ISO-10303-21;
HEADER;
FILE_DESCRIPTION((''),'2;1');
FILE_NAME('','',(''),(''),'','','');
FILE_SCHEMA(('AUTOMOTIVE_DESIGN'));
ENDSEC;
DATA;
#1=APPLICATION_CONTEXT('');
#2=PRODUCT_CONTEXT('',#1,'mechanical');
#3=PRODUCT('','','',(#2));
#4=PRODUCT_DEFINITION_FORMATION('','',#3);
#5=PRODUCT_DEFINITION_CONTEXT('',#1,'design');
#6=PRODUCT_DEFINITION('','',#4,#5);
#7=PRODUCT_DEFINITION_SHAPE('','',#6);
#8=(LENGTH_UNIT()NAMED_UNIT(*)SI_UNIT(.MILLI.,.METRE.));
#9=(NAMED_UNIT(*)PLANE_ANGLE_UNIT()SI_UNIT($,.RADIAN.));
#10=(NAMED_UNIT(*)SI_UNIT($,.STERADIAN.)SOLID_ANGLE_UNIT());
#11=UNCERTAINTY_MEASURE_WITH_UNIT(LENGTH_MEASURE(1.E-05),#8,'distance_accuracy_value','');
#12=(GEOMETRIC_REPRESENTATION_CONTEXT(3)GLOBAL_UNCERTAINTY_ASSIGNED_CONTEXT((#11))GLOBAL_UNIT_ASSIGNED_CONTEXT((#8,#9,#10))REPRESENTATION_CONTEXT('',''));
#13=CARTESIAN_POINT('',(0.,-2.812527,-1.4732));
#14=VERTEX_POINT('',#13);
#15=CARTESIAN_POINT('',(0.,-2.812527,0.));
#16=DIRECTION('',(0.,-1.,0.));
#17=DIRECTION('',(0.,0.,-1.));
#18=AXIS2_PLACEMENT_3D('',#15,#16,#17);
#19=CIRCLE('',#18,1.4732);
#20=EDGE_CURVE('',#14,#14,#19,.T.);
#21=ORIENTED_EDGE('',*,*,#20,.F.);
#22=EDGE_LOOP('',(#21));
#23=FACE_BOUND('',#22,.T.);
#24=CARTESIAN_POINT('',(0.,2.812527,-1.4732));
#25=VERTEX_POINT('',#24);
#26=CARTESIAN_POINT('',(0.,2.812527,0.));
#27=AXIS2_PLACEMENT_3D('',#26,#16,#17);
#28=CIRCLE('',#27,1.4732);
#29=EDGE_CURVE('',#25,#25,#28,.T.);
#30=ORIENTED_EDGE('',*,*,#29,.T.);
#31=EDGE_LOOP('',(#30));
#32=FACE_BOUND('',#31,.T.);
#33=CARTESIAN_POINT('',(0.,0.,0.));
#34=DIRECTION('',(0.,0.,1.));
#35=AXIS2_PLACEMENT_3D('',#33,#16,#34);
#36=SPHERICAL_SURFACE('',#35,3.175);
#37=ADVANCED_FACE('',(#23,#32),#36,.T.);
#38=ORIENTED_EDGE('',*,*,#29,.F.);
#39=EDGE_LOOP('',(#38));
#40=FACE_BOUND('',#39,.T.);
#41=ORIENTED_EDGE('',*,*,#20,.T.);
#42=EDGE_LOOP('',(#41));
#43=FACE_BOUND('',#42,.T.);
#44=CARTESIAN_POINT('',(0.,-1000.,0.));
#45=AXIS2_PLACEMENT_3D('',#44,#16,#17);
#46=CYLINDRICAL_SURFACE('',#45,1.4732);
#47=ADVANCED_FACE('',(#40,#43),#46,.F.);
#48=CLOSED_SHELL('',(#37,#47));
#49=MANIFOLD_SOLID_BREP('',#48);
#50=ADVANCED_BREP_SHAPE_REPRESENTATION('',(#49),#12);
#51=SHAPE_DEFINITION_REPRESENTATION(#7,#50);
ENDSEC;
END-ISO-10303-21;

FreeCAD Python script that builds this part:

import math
import FreeCAD as App
import Part
import Sketcher
Q = App.Units.Quantity

doc = App.newDocument("Part")
params = doc.addObject("Spreadsheet::Sheet", "Params")
for row, (alias, value) in enumerate([
    ("sketch1_radius", "0.125 in"),
    ("revolution_angle", "360 deg"),
], start=1):
    params.set(f"A{row}", alias)
    params.set(f"B{row}", "=" + value)
    params.setAlias(f"B{row}", alias)

body = doc.addObject("PartDesign::Body", "Body")

sketch1 = body.newObject("Sketcher::SketchObject", "Sketch")
sketch1.AttachmentSupport = (doc.getObject("YZ_Plane"), [""])
sketch1.MapMode = "FlatFace"
sketch1.addGeometry([
    Part.LineSegment(App.Vector(-2.8, 1.5, 0), App.Vector(2.8, 1.5, 0)),
    Part.ArcOfCircle(Part.Circle(App.Vector(0, 0, 0), App.Vector(0, 0, 1), 3.2), math.radians(28), math.radians(152)),
], False)
sketch1.addConstraint([
    Sketcher.Constraint("Coincident", 0, 1, 1, 2),
    Sketcher.Constraint("Coincident", 1, 1, 0, 2),
    Sketcher.Constraint("Horizontal", 0),
    Sketcher.Constraint("Coincident", 1, 3, -1, 1),
    Sketcher.Constraint("Radius", 1, Q("0.125 in")),
    Sketcher.Constraint("DistanceY", -1, 1, 0, 1, Q("0.058 in")),
])
sketch1.setExpression("Constraints[4]", "Params.sketch1_radius")
revolution = body.newObject("PartDesign::Revolution", "Revolution")
revolution.Profile = sketch1
revolution.ReferenceAxis = (sketch1, ["H_Axis"])
revolution.setExpression("Angle", "Params.revolution_angle")

doc.recompute()
